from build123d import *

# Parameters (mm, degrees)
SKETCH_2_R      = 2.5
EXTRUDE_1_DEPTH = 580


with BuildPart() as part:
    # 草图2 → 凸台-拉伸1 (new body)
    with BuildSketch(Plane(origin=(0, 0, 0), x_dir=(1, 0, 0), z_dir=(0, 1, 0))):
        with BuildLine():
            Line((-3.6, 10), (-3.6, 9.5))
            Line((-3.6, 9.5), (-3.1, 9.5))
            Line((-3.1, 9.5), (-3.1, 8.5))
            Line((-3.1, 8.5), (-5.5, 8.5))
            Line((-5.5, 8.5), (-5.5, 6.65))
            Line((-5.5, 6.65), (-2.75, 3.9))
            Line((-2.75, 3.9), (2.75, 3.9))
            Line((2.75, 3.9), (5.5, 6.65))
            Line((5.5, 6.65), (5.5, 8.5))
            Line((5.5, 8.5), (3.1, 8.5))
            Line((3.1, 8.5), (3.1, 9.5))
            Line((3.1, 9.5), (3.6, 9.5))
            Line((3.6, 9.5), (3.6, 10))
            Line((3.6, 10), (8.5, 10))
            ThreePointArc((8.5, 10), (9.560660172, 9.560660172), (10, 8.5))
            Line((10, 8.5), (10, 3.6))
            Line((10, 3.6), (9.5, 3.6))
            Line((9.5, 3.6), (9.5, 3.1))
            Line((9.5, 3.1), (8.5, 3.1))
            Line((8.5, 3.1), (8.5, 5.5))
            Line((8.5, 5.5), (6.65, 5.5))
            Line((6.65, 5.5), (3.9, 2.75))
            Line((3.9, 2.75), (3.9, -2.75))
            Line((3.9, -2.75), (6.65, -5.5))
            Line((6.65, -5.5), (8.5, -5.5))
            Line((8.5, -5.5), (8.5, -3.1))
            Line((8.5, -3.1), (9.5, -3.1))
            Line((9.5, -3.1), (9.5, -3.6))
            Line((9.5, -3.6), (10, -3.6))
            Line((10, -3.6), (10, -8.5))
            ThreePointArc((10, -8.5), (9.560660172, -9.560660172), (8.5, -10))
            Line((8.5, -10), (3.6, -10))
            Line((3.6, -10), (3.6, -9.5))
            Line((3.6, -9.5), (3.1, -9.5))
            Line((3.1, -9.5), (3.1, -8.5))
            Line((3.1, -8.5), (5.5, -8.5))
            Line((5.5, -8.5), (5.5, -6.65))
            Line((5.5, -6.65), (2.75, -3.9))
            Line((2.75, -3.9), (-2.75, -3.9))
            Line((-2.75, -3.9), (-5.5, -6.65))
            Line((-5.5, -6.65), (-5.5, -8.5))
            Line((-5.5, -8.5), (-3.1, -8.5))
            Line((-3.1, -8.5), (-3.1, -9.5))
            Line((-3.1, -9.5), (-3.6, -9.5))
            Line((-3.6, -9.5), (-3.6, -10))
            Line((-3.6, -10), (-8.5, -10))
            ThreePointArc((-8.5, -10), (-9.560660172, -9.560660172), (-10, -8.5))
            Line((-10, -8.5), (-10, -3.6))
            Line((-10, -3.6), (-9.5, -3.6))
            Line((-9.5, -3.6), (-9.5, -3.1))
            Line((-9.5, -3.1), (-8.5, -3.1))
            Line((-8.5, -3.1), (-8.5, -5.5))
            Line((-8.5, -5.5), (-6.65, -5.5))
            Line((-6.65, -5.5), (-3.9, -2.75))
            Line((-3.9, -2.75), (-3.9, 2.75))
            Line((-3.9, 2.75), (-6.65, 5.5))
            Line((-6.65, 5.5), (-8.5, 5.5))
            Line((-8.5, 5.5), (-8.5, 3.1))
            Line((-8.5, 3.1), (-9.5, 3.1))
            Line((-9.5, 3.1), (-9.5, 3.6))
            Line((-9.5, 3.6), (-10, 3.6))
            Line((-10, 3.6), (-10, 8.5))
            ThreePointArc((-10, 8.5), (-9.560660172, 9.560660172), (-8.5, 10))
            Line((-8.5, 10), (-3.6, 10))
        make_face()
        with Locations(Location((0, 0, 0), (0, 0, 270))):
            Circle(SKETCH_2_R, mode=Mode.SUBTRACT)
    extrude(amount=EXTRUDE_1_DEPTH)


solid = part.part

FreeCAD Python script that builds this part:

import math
import FreeCAD as App
import Part
import Sketcher
from FreeCAD import Vector
Q = App.Units.Quantity

doc = App.newDocument("Part")
body = doc.addObject("PartDesign::Body", "Body")

sketch1 = body.newObject("Sketcher::SketchObject", "Sketch")
sketch1.AttachmentSupport = (doc.getObject("XZ_Plane"), [""])
sketch1.MapMode = "FlatFace"
sketch1.addGeometry(Part.LineSegment(Vector(-3.6, -9.5, 0), Vector(-3.6, -10, 0)), False)
sketch1.addGeometry(Part.LineSegment(Vector(-3.6, -10, 0), Vector(-8.5, -10, 0)), False)
sketch1.addGeometry(Part.ArcOfCircle(Part.Circle(Vector(-8.5, -8.5, 0), Vector(0, 0, 1), 1.5), math.radians(180), math.radians(270)), False)
sketch1.addGeometry(Part.LineSegment(Vector(-10, -8.5, 0), Vector(-10, -3.6, 0)), False)
sketch1.addGeometry(Part.LineSegment(Vector(-10, -3.6, 0), Vector(-9.5, -3.6, 0)), False)
sketch1.addGeometry(Part.LineSegment(Vector(-9.5, -3.6, 0), Vector(-9.5, -3.1, 0)), False)
sketch1.addGeometry(Part.LineSegment(Vector(-9.5, -3.1, 0), Vector(-8.5, -3.1, 0)), False)
sketch1.addGeometry(Part.LineSegment(Vector(-8.5, -3.1, 0), Vector(-8.5, -5.5, 0)), False)
sketch1.addGeometry(Part.LineSegment(Vector(-8.5, -5.5, 0), Vector(-6.65, -5.5, 0)), False)
sketch1.addGeometry(Part.LineSegment(Vector(-6.65, -5.5, 0), Vector(-3.9, -2.75, 0)), False)
sketch1.addGeometry(Part.LineSegment(Vector(-3.9, -2.75, 0), Vector(-3.9, 2.75, 0)), False)
sketch1.addGeometry(Part.LineSegment(Vector(-3.9, 2.75, 0), Vector(-6.65, 5.5, 0)), False)
sketch1.addGeometry(Part.LineSegment(Vector(-6.65, 5.5, 0), Vector(-8.5, 5.5, 0)), False)
sketch1.addGeometry(Part.LineSegment(Vector(-8.5, 5.5, 0), Vector(-8.5, 3.1, 0)), False)
sketch1.addGeometry(Part.LineSegment(Vector(-8.5, 3.1, 0), Vector(-9.5, 3.1, 0)), False)
sketch1.addGeometry(Part.LineSegment(Vector(-9.5, 3.1, 0), Vector(-9.5, 3.6, 0)), False)
sketch1.addGeometry(Part.LineSegment(Vector(-9.5, 3.6, 0), Vector(-10, 3.6, 0)), False)
sketch1.addGeometry(Part.LineSegment(Vector(-10, 3.6, 0), Vector(-10, 8.5, 0)), False)
sketch1.addGeometry(Part.ArcOfCircle(Part.Circle(Vector(-8.5, 8.5, 0), Vector(0, 0, 1), 1.5), math.radians(90), math.radians(180)), False)
sketch1.addGeometry(Part.LineSegment(Vector(-8.5, 10, 0), Vector(-3.6, 10, 0)), False)
sketch1.addGeometry(Part.LineSegment(Vector(-3.6, 10, 0), Vector(-3.6, 9.5, 0)), False)
sketch1.addGeometry(Part.LineSegment(Vector(-3.6, 9.5, 0), Vector(-3.1, 9.5, 0)), False)
sketch1.addGeometry(Part.LineSegment(Vector(-3.1, 9.5, 0), Vector(-3.1, 8.5, 0)), False)
sketch1.addGeometry(Part.LineSegment(Vector(-3.1, 8.5, 0), Vector(-5.5, 8.5, 0)), False)
sketch1.addGeometry(Part.LineSegment(Vector(-5.5, 8.5, 0), Vector(-5.5, 6.65, 0)), False)
sketch1.addGeometry(Part.LineSegment(Vector(-5.5, 6.65, 0), Vector(-2.75, 3.9, 0)), False)
sketch1.addGeometry(Part.LineSegment(Vector(-2.75, 3.9, 0), Vector(2.75, 3.9, 0)), False)
sketch1.addGeometry(Part.LineSegment(Vector(2.75, 3.9, 0), Vector(5.5, 6.65, 0)), False)
sketch1.addGeometry(Part.LineSegment(Vector(5.5, 6.65, 0), Vector(5.5, 8.5, 0)), False)
sketch1.addGeometry(Part.LineSegment(Vector(5.5, 8.5, 0), Vector(3.1, 8.5, 0)), False)
sketch1.addGeometry(Part.LineSegment(Vector(3.1, 8.5, 0), Vector(3.1, 9.5, 0)), False)
sketch1.addGeometry(Part.LineSegment(Vector(3.1, 9.5, 0), Vector(3.6, 9.5, 0)), False)
sketch1.addGeometry(Part.LineSegment(Vector(3.6, 9.5, 0), Vector(3.6, 10, 0)), False)
sketch1.addGeometry(Part.LineSegment(Vector(3.6, 10, 0), Vector(8.5, 10, 0)), False)
sketch1.addGeometry(Part.ArcOfCircle(Part.Circle(Vector(8.5, 8.5, 0), Vector(0, 0, 1), 1.5), math.radians(0), math.radians(90)), False)
sketch1.addGeometry(Part.LineSegment(Vector(10, 8.5, 0), Vector(10, 3.6, 0)), False)
sketch1.addGeometry(Part.LineSegment(Vector(10, 3.6, 0), Vector(9.5, 3.6, 0)), False)
sketch1.addGeometry(Part.LineSegment(Vector(9.5, 3.6, 0), Vector(9.5, 3.1, 0)), False)
sketch1.addGeometry(Part.LineSegment(Vector(9.5, 3.1, 0), Vector(8.5, 3.1, 0)), False)
sketch1.addGeometry(Part.LineSegment(Vector(8.5, 3.1, 0), Vector(8.5, 5.5, 0)), False)
sketch1.addGeometry(Part.LineSegment(Vector(8.5, 5.5, 0), Vector(6.65, 5.5, 0)), False)
sketch1.addGeometry(Part.LineSegment(Vector(6.65, 5.5, 0), Vector(3.9, 2.75, 0)), False)
sketch1.addGeometry(Part.LineSegment(Vector(3.9, 2.75, 0), Vector(3.9, -2.75, 0)), False)
sketch1.addGeometry(Part.LineSegment(Vector(3.9, -2.75, 0), Vector(6.65, -5.5, 0)), False)
sketch1.addGeometry(Part.LineSegment(Vector(6.65, -5.5, 0), Vector(8.5, -5.5, 0)), False)
sketch1.addGeometry(Part.LineSegment(Vector(8.5, -5.5, 0), Vector(8.5, -3.1, 0)), False)
sketch1.addGeometry(Part.LineSegment(Vector(8.5, -3.1, 0), Vector(9.5, -3.1, 0)), False)
sketch1.addGeometry(Part.LineSegment(Vector(9.5, -3.1, 0), Vector(9.5, -3.6, 0)), False)
sketch1.addGeometry(Part.LineSegment(Vector(9.5, -3.6, 0), Vector(10, -3.6, 0)), False)
sketch1.addGeometry(Part.LineSegment(Vector(10, -3.6, 0), Vector(10, -8.5, 0)), False)
sketch1.addGeometry(Part.ArcOfCircle(Part.Circle(Vector(8.5, -8.5, 0), Vector(0, 0, 1), 1.5), math.radians(-90), math.radians(0)), False)
sketch1.addGeometry(Part.LineSegment(Vector(8.5, -10, 0), Vector(3.6, -10, 0)), False)
sketch1.addGeometry(Part.LineSegment(Vector(3.6, -10, 0), Vector(3.6, -9.5, 0)), False)
sketch1.addGeometry(Part.LineSegment(Vector(3.6, -9.5, 0), Vector(3.1, -9.5, 0)), False)
sketch1.addGeometry(Part.LineSegment(Vector(3.1, -9.5, 0), Vector(3.1, -8.5, 0)), False)
sketch1.addGeometry(Part.LineSegment(Vector(3.1, -8.5, 0), Vector(5.5, -8.5, 0)), False)
sketch1.addGeometry(Part.LineSegment(Vector(5.5, -8.5, 0), Vector(5.5, -6.65, 0)), False)
sketch1.addGeometry(Part.LineSegment(Vector(5.5, -6.65, 0), Vector(2.75, -3.9, 0)), False)
sketch1.addGeometry(Part.LineSegment(Vector(2.75, -3.9, 0), Vector(-2.75, -3.9, 0)), False)
sketch1.addGeometry(Part.LineSegment(Vector(-2.75, -3.9, 0), Vector(-5.5, -6.65, 0)), False)
sketch1.addGeometry(Part.LineSegment(Vector(-5.5, -6.65, 0), Vector(-5.5, -8.5, 0)), False)
sketch1.addGeometry(Part.LineSegment(Vector(-5.5, -8.5, 0), Vector(-3.1, -8.5, 0)), False)
sketch1.addGeometry(Part.LineSegment(Vector(-3.1, -8.5, 0), Vector(-3.1, -9.5, 0)), False)
sketch1.addGeometry(Part.LineSegment(Vector(-3.1, -9.5, 0), Vector(-3.6, -9.5, 0)), False)
sketch1.addGeometry(Part.Circle(Vector(0, 0, 0), Vector(0, 0, 1), 2.5), False)
sketch1.addConstraint(Sketcher.Constraint("Coincident", 0, 2, 1, 1))
sketch1.addConstraint(Sketcher.Constraint("Tangent", 1, 2, 2, 2))
sketch1.addConstraint(Sketcher.Constraint("Tangent", 2, 1, 3, 1))
sketch1.addConstraint(Sketcher.Constraint("Coincident", 3, 2, 4, 1))
sketch1.addConstraint(Sketcher.Constraint("Coincident", 4, 2, 5, 1))
sketch1.addConstraint(Sketcher.Constraint("Coincident", 5, 2, 6, 1))
sketch1.addConstraint(Sketcher.Constraint("Coincident", 6, 2, 7, 1))
sketch1.addConstraint(Sketcher.Constraint("Coincident", 7, 2, 8, 1))
sketch1.addConstraint(Sketcher.Constraint("Coincident", 8, 2, 9, 1))
sketch1.addConstraint(Sketcher.Constraint("Coincident", 9, 2, 10, 1))
sketch1.addConstraint(Sketcher.Constraint("Coincident", 10, 2, 11, 1))
sketch1.addConstraint(Sketcher.Constraint("Coincident", 11, 2, 12, 1))
sketch1.addConstraint(Sketcher.Constraint("Coincident", 12, 2, 13, 1))
sketch1.addConstraint(Sketcher.Constraint("Coincident", 13, 2, 14, 1))
sketch1.addConstraint(Sketcher.Constraint("Coincident", 14, 2, 15, 1))
sketch1.addConstraint(Sketcher.Constraint("Coincident", 15, 2, 16, 1))
sketch1.addConstraint(Sketcher.Constraint("Coincident", 16, 2, 17, 1))
sketch1.addConstraint(Sketcher.Constraint("Tangent", 17, 2, 18, 2))
sketch1.addConstraint(Sketcher.Constraint("Tangent", 18, 1, 19, 1))
sketch1.addConstraint(Sketcher.Constraint("Coincident", 19, 2, 20, 1))
sketch1.addConstraint(Sketcher.Constraint("Coincident", 20, 2, 21, 1))
sketch1.addConstraint(Sketcher.Constraint("Coincident", 21, 2, 22, 1))
sketch1.addConstraint(Sketcher.Constraint("Coincident", 22, 2, 23, 1))
sketch1.addConstraint(Sketcher.Constraint("Coincident", 23, 2, 24, 1))
sketch1.addConstraint(Sketcher.Constraint("Coincident", 24, 2, 25, 1))
sketch1.addConstraint(Sketcher.Constraint("Coincident", 25, 2, 26, 1))
sketch1.addConstraint(Sketcher.Constraint("Coincident", 26, 2, 27, 1))
sketch1.addConstraint(Sketcher.Constraint("Coincident", 27, 2, 28, 1))
sketch1.addConstraint(Sketcher.Constraint("Coincident", 28, 2, 29, 1))
sketch1.addConstraint(Sketcher.Constraint("Coincident", 29, 2, 30, 1))
sketch1.addConstraint(Sketcher.Constraint("Coincident", 30, 2, 31, 1))
sketch1.addConstraint(Sketcher.Constraint("Coincident", 31, 2, 32, 1))
sketch1.addConstraint(Sketcher.Constraint("Coincident", 32, 2, 33, 1))
sketch1.addConstraint(Sketcher.Constraint("Tangent", 33, 2, 34, 2))
sketch1.addConstraint(Sketcher.Constraint("Tangent", 34, 1, 35, 1))
sketch1.addConstraint(Sketcher.Constraint("Coincident", 35, 2, 36, 1))
sketch1.addConstraint(Sketcher.Constraint("Coincident", 36, 2, 37, 1))
sketch1.addConstraint(Sketcher.Constraint("Coincident", 37, 2, 38, 1))
sketch1.addConstraint(Sketcher.Constraint("Coincident", 38, 2, 39, 1))
sketch1.addConstraint(Sketcher.Constraint("Coincident", 39, 2, 40, 1))
sketch1.addConstraint(Sketcher.Constraint("Coincident", 40, 2, 41, 1))
sketch1.addConstraint(Sketcher.Constraint("Coincident", 41, 2, 42, 1))
sketch1.addConstraint(Sketcher.Constraint("Coincident", 42, 2, 43, 1))
sketch1.addConstraint(Sketcher.Constraint("Coincident", 43, 2, 44, 1))
sketch1.addConstraint(Sketcher.Constraint("Coincident", 44, 2, 45, 1))
sketch1.addConstraint(Sketcher.Constraint("Coincident", 45, 2, 46, 1))
sketch1.addConstraint(Sketcher.Constraint("Coincident", 46, 2, 47, 1))
sketch1.addConstraint(Sketcher.Constraint("Coincident", 47, 2, 48, 1))
sketch1.addConstraint(Sketcher.Constraint("Coincident", 48, 2, 49, 1))
sketch1.addConstraint(Sketcher.Constraint("Tangent", 49, 2, 50, 2))
sketch1.addConstraint(Sketcher.Constraint("Tangent", 50, 1, 51, 1))
sketch1.addConstraint(Sketcher.Constraint("Coincident", 51, 2, 52, 1))
sketch1.addConstraint(Sketcher.Constraint("Coincident", 52, 2, 53, 1))
sketch1.addConstraint(Sketcher.Constraint("Coincident", 53, 2, 54, 1))
sketch1.addConstraint(Sketcher.Constraint("Coincident", 54, 2, 55, 1))
sketch1.addConstraint(Sketcher.Constraint("Coincident", 55, 2, 56, 1))
sketch1.addConstraint(Sketcher.Constraint("Coincident", 56, 2, 57, 1))
sketch1.addConstraint(Sketcher.Constraint("Coincident", 57, 2, 58, 1))
sketch1.addConstraint(Sketcher.Constraint("Coincident", 58, 2, 59, 1))
sketch1.addConstraint(Sketcher.Constraint("Coincident", 59, 2, 60, 1))
sketch1.addConstraint(Sketcher.Constraint("Coincident", 60, 2, 61, 1))
sketch1.addConstraint(Sketcher.Constraint("Coincident", 61, 2, 62, 1))
sketch1.addConstraint(Sketcher.Constraint("Coincident", 62, 2, 63, 1))
sketch1.addConstraint(Sketcher.Constraint("Coincident", 63, 2, 0, 1))
sketch1.addConstraint(Sketcher.Constraint("Vertical", 0))
sketch1.addConstraint(Sketcher.Constraint("Horizontal", 1))
sketch1.addConstraint(Sketcher.Constraint("Vertical", 3))
sketch1.addConstraint(Sketcher.Constraint("Horizontal", 4))
sketch1.addConstraint(Sketcher.Constraint("Vertical", 5))
sketch1.addConstraint(Sketcher.Constraint("Horizontal", 6))
sketch1.addConstraint(Sketcher.Constraint("Vertical", 7))
sketch1.addConstraint(Sketcher.Constraint("Horizontal", 8))
sketch1.addConstraint(Sketcher.Constraint("Vertical", 10))
sketch1.addConstraint(Sketcher.Constraint("Horizontal", 12))
sketch1.addConstraint(Sketcher.Constraint("Vertical", 13))
sketch1.addConstraint(Sketcher.Constraint("Horizontal", 14))
sketch1.addConstraint(Sketcher.Constraint("Vertical", 15))
sketch1.addConstraint(Sketcher.Constraint("Horizontal", 16))
sketch1.addConstraint(Sketcher.Constraint("Vertical", 17))
sketch1.addConstraint(Sketcher.Constraint("Horizontal", 19))
sketch1.addConstraint(Sketcher.Constraint("Vertical", 20))
sketch1.addConstraint(Sketcher.Constraint("Horizontal", 21))
sketch1.addConstraint(Sketcher.Constraint("Vertical", 22))
sketch1.addConstraint(Sketcher.Constraint("Horizontal", 23))
sketch1.addConstraint(Sketcher.Constraint("Vertical", 24))
sketch1.addConstraint(Sketcher.Constraint("Horizontal", 26))
sketch1.addConstraint(Sketcher.Constraint("Vertical", 28))
sketch1.addConstraint(Sketcher.Constraint("Horizontal", 29))
sketch1.addConstraint(Sketcher.Constraint("Vertical", 30))
sketch1.addConstraint(Sketcher.Constraint("Horizontal", 31))
sketch1.addConstraint(Sketcher.Constraint("Vertical", 32))
sketch1.addConstraint(Sketcher.Constraint("Horizontal", 33))
sketch1.addConstraint(Sketcher.Constraint("Vertical", 35))
sketch1.addConstraint(Sketcher.Constraint("Horizontal", 36))
sketch1.addConstraint(Sketcher.Constraint("Vertical", 37))
sketch1.addConstraint(Sketcher.Constraint("Horizontal", 38))
sketch1.addConstraint(Sketcher.Constraint("Vertical", 39))
sketch1.addConstraint(Sketcher.Constraint("Horizontal", 40))
sketch1.addConstraint(Sketcher.Constraint("Vertical", 42))
sketch1.addConstraint(Sketcher.Constraint("Horizontal", 44))
sketch1.addConstraint(Sketcher.Constraint("Vertical", 45))
sketch1.addConstraint(Sketcher.Constraint("Horizontal", 46))
sketch1.addConstraint(Sketcher.Constraint("Vertical", 47))
sketch1.addConstraint(Sketcher.Constraint("Horizontal", 48))
sketch1.addConstraint(Sketcher.Constraint("Vertical", 49))
sketch1.addConstraint(Sketcher.Constraint("Horizontal", 51))
sketch1.addConstraint(Sketcher.Constraint("Vertical", 52))
sketch1.addConstraint(Sketcher.Constraint("Horizontal", 53))
sketch1.addConstraint(Sketcher.Constraint("Vertical", 54))
sketch1.addConstraint(Sketcher.Constraint("Horizontal", 55))
sketch1.addConstraint(Sketcher.Constraint("Vertical", 56))
sketch1.addConstraint(Sketcher.Constraint("Horizontal", 58))
sketch1.addConstraint(Sketcher.Constraint("Vertical", 60))
sketch1.addConstraint(Sketcher.Constraint("Horizontal", 61))
sketch1.addConstraint(Sketcher.Constraint("Vertical", 62))
sketch1.addConstraint(Sketcher.Constraint("Horizontal", 63))
sketch1.addConstraint(Sketcher.Constraint("Coincident", 64, 3, -1, 1))
sketch1.addConstraint(Sketcher.Constraint("Equal", 2, 18))
sketch1.addConstraint(Sketcher.Constraint("Equal", 18, 34))
sketch1.addConstraint(Sketcher.Constraint("Equal", 34, 50))
sketch1.addConstraint(Sketcher.Constraint("Symmetric", 2, 3, 34, 3, -1, 1))
sketch1.addConstraint(Sketcher.Constraint("Symmetric", 18, 3, 50, 3, -1, 1))
sketch1.addConstraint(Sketcher.Constraint("Symmetric", 4, 2, 36, 2, -1, 1))
sketch1.addConstraint(Sketcher.Constraint("Symmetric", 6, 2, 38, 2, -1, 1))
sketch1.addConstraint(Sketcher.Constraint("Symmetric", 8, 2, 40, 2, -1, 1))
sketch1.addConstraint(Sketcher.Constraint("Symmetric", 9, 2, 41, 2, -1, 1))
sketch1.addConstraint(Sketcher.Constraint("Symmetric", 11, 2, 43, 2, -1, 1))
sketch1.addConstraint(Sketcher.Constraint("Symmetric", 13, 2, 45, 2, -1, 1))
sketch1.addConstraint(Sketcher.Constraint("Symmetric", 15, 2, 47, 2, -1, 1))
sketch1.addConstraint(Sketcher.Constraint("Symmetric", 20, 2, 52, 2, -1, 1))
sketch1.addConstraint(Sketcher.Constraint("Symmetric", 22, 2, 54, 2, -1, 1))
sketch1.addConstraint(Sketcher.Constraint("Symmetric", 24, 2, 56, 2, -1, 1))
sketch1.addConstraint(Sketcher.Constraint("Symmetric", 25, 2, 57, 2, -1, 1))
sketch1.addConstraint(Sketcher.Constraint("Symmetric", 27, 2, 59, 2, -1, 1))
sketch1.addConstraint(Sketcher.Constraint("Symmetric", 29, 2, 61, 2, -1, 1))
sketch1.addConstraint(Sketcher.Constraint("Symmetric", 31, 2, 63, 2, -1, 1))
sketch1.addConstraint(Sketcher.Constraint("Symmetric", 18, 3, 34, 3, -2))
sketch1.addConstraint(Sketcher.Constraint("Symmetric", 24, 2, 27, 2, -2))
sketch1.addConstraint(Sketcher.Constraint("Symmetric", 22, 2, 29, 2, -2))
sketch1.addConstraint(Sketcher.Constraint("Symmetric", 20, 2, 31, 2, -2))
sketch1.addConstraint(Sketcher.Constraint("Symmetric", 15, 2, 36, 2, -2))
sketch1.addConstraint(Sketcher.Constraint("Symmetric", 13, 2, 38, 2, -2))
sketch1.addConstraint(Sketcher.Constraint("Symmetric", 11, 2, 40, 2, -2))
sketch1.addConstraint(Sketcher.Constraint("Perpendicular", 9, 11))
sketch1.addConstraint(Sketcher.Constraint("Parallel", 11, 25))
sketch1.addConstraint(Sketcher.Constraint("Perpendicular", 25, 27))
sketch1.addConstraint(Sketcher.Constraint("Perpendicular", 41, 43))
sketch1.addConstraint(Sketcher.Constraint("Perpendicular", 57, 59))
sketch1.addConstraint(Sketcher.Constraint("Horizontal", 17, 2, 22, 2))
sketch1.addConstraint(Sketcher.Constraint("Horizontal", 10, 2, 41, 2))
sketch1.addConstraint(Sketcher.Constraint("Vertical", 1, 2, 6, 2))
sketch1.addConstraint(Sketcher.Constraint("Equal", 16, 21))
sketch1.addConstraint(Sketcher.Constraint("Equal", 63, 0))
sketch1.addConstraint(Sketcher.Constraint("Equal", 51, 3))
sketch1.addConstraint(Sketcher.Constraint("Equal", 0, 5))
sketch1.addConstraint(Sketcher.Constraint("Equal", 61, 7))
sketch1.addConstraint(Sketcher.Constraint("Equal", 58, 10))
sketch1.addConstraint(Sketcher.Constraint("Equal", 44, 24))
sketch1.addConstraint(Sketcher.Constraint("Equal", 11, 25))
sketch1.addConstraint(Sketcher.Constraint("Diameter", 64, Q("5 mm")))
sketch1.addConstraint(Sketcher.Constraint("Radius", 2, Q("1.5 mm")))
sketch1.addConstraint(Sketcher.Constraint("DistanceX", 6, 1, 6, 2, Q("1 mm")))
sketch1.addConstraint(Sketcher.Constraint("DistanceX", 1, 2, 1, 1, Q("4.9 mm")))
sketch1.addConstraint(Sketcher.Constraint("DistanceX", 23, 2, 23, 1, Q("2.4 mm")))
sketch1.addConstraint(Sketcher.Constraint("DistanceX", 26, 1, 26, 2, Q("5.5 mm")))
sketch1.addConstraint(Sketcher.Constraint("DistanceY", 0, 2, -1, 1, Q("10 mm")))
sketch1.addConstraint(Sketcher.Constraint("DistanceX", 8, 1, 8, 2, Q("1.85 mm")))
pad1 = body.newObject("PartDesign::Pad", "Pad")
pad1.Profile = sketch1
pad1.Length = 580
pad1.Reversed = True

doc.recompute()
